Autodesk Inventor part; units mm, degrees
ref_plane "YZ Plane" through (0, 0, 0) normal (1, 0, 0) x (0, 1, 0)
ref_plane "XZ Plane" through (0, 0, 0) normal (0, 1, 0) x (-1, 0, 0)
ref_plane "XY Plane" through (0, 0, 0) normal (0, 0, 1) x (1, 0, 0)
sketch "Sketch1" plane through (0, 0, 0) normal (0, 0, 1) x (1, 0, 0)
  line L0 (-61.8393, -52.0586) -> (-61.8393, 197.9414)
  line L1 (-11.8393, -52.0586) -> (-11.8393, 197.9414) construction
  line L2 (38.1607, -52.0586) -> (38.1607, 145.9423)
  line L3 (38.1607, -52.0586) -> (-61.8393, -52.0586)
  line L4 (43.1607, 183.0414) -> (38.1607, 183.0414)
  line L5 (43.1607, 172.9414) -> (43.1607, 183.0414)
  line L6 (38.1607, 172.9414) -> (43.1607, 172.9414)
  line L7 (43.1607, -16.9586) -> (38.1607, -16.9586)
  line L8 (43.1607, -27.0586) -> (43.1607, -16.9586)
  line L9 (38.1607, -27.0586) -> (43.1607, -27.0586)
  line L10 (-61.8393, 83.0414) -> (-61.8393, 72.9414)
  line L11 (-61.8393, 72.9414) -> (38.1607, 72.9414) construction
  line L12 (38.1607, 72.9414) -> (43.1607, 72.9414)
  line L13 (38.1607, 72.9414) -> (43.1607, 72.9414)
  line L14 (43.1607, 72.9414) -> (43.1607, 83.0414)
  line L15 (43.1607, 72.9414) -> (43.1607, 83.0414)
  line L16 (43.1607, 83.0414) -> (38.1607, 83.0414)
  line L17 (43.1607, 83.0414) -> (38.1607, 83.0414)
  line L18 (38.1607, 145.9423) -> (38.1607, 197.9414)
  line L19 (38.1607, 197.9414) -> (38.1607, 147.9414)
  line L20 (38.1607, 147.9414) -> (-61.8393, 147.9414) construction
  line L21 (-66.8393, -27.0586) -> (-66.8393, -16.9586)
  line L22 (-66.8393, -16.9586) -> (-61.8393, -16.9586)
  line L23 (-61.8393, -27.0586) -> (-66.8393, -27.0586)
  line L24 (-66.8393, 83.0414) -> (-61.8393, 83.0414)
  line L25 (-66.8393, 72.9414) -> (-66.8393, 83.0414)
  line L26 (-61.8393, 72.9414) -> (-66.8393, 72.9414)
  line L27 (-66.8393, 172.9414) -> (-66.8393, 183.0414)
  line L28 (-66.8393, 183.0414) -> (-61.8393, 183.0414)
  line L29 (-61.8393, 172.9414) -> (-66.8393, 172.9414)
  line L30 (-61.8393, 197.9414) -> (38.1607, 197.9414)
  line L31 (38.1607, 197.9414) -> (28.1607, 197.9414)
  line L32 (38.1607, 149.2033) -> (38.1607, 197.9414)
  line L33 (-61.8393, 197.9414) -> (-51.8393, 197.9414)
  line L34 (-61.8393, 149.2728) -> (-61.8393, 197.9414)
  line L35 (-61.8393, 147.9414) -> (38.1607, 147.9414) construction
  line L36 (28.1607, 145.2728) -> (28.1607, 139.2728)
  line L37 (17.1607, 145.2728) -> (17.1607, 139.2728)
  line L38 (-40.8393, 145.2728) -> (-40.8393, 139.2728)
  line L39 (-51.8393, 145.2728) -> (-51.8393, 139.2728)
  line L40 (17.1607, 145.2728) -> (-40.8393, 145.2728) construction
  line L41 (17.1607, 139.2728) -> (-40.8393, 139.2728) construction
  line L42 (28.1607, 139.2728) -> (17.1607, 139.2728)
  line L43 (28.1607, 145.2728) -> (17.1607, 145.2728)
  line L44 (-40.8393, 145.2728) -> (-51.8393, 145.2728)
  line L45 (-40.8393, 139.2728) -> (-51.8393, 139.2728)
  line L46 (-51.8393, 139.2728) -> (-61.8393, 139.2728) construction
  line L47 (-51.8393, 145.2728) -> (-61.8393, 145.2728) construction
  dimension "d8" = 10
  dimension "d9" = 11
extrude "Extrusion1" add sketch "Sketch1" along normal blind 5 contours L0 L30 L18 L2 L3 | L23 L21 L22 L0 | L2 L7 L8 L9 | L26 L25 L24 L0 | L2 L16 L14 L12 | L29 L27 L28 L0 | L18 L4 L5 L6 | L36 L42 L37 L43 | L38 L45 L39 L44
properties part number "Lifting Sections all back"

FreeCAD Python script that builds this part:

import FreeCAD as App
import Part
import Sketcher


def add_polygon(sketch, points):
    """Adds a closed chain of lines whose ends are joined by coincident constraints."""
    first, n = sketch.GeometryCount, len(points)
    for a, b in zip(points, points[1:] + points[:1]):
        sketch.addGeometry(Part.LineSegment(App.Vector(*a, 0), App.Vector(*b, 0)), False)
    for i in range(n):
        sketch.addConstraint(Sketcher.Constraint("Coincident", first + i, 2, first + (i + 1) % n, 1))

doc = App.newDocument("Part")
body = doc.addObject("PartDesign::Body", "Body")

# Sketch on XY plane
sketch1 = body.newObject("Sketcher::SketchObject", "Sketch")
sketch1.AttachmentSupport = (doc.getObject("XY_Plane"), [""])
sketch1.MapMode = "FlatFace"
add_polygon(sketch1, [(-61.8393, -27.0586), (-61.8393, -52.0586), (38.1607, -52.0586), (38.1607, -27.0586), (43.1607, -27.0586), (43.1607, -16.9586), (38.1607, -16.9586), (38.1607, 72.9414), (43.1607, 72.9414), (43.1607, 83.0414), (38.1607, 83.0414), (38.1607, 172.9414), (43.1607, 172.9414), (43.1607, 183.0414), (38.1607, 183.0414), (38.1607, 197.9414), (-61.8393, 197.9414), (-61.8393, 183.0414), (-66.8393, 183.0414), (-66.8393, 172.9414), (-61.8393, 172.9414), (-61.8393, 83.0414), (-66.8393, 83.0414), (-66.8393, 72.9414), (-61.8393, 72.9414), (-61.8393, -16.9586), (-66.8393, -16.9586), (-66.8393, -27.0586)])  # lines 0-27
sketch1.addConstraint([
    Sketcher.Constraint("Vertical", 0),
    Sketcher.Constraint("Horizontal", 1),
    Sketcher.Constraint("Vertical", 2),
    Sketcher.Constraint("Horizontal", 3),
    Sketcher.Constraint("Vertical", 4),
    Sketcher.Constraint("Horizontal", 5),
    Sketcher.Constraint("Vertical", 6),
    Sketcher.Constraint("Horizontal", 7),
    Sketcher.Constraint("Vertical", 8),
    Sketcher.Constraint("Horizontal", 9),
    Sketcher.Constraint("Vertical", 10),
    Sketcher.Constraint("Horizontal", 11),
    Sketcher.Constraint("Vertical", 12),
    Sketcher.Constraint("Horizontal", 13),
    Sketcher.Constraint("Vertical", 14),
    Sketcher.Constraint("Horizontal", 15),
    Sketcher.Constraint("Vertical", 16),
    Sketcher.Constraint("Horizontal", 17),
    Sketcher.Constraint("Vertical", 18),
    Sketcher.Constraint("Horizontal", 19),
    Sketcher.Constraint("Vertical", 20),
    Sketcher.Constraint("Horizontal", 21),
    Sketcher.Constraint("Vertical", 22),
    Sketcher.Constraint("Horizontal", 23),
    Sketcher.Constraint("Vertical", 24),
    Sketcher.Constraint("Horizontal", 25),
    Sketcher.Constraint("Vertical", 26),
    Sketcher.Constraint("Horizontal", 27),
    Sketcher.Constraint("Horizontal", 13, 2, 16, 2),
    Sketcher.Constraint("Horizontal", 11, 2, 18, 2),
    Sketcher.Constraint("Horizontal", 9, 2, 20, 2),
    Sketcher.Constraint("Horizontal", 7, 2, 22, 2),
    Sketcher.Constraint("Horizontal", 5, 2, 24, 2),
    Sketcher.Constraint("Horizontal", 3, 2, 26, 2),
    Sketcher.Constraint("Vertical", 2, 2, 5, 2),
    Sketcher.Constraint("Vertical", 4, 2, 7, 2),
    Sketcher.Constraint("Vertical", 6, 2, 9, 2),
    Sketcher.Constraint("Vertical", 8, 2, 11, 2),
    Sketcher.Constraint("Vertical", 10, 2, 13, 2),
    Sketcher.Constraint("Vertical", 0, 2, 15, 2),
    Sketcher.Constraint("Vertical", 16, 2, 19, 2),
    Sketcher.Constraint("Vertical", 18, 2, 21, 2),
    Sketcher.Constraint("Vertical", 20, 2, 23, 2),
    Sketcher.Constraint("Vertical", 22, 2, 25, 2),
    Sketcher.Constraint("Equal", 13, 17),
    Sketcher.Constraint("Equal", 4, 8),
    Sketcher.Constraint("Equal", 6, 10),
    Sketcher.Constraint("Equal", 8, 12),
    Sketcher.Constraint("DistanceX", 1, 1, 1, 2, 100.0),
    Sketcher.Constraint("DistanceX", 3, 1, 3, 2, 5.0),
    Sketcher.Constraint("DistanceY", 0, 2, 0, 1, 25.0),
    Sketcher.Constraint("DistanceY", 4, 1, 4, 2, 10.1),
    Sketcher.Constraint("DistanceY", 6, 1, 6, 2, 89.9),
    Sketcher.Constraint("DistanceY", 14, 1, 14, 2, 14.9),
    Sketcher.Constraint("DistanceX", 0, 2, -1, 1, 61.8393),
    Sketcher.Constraint("DistanceY", 0, 2, -1, 1, 52.0586),
])
pad1 = body.newObject("PartDesign::Pad", "Pad")
pad1.Profile = sketch1
pad1.Length = 5

doc.recompute()
